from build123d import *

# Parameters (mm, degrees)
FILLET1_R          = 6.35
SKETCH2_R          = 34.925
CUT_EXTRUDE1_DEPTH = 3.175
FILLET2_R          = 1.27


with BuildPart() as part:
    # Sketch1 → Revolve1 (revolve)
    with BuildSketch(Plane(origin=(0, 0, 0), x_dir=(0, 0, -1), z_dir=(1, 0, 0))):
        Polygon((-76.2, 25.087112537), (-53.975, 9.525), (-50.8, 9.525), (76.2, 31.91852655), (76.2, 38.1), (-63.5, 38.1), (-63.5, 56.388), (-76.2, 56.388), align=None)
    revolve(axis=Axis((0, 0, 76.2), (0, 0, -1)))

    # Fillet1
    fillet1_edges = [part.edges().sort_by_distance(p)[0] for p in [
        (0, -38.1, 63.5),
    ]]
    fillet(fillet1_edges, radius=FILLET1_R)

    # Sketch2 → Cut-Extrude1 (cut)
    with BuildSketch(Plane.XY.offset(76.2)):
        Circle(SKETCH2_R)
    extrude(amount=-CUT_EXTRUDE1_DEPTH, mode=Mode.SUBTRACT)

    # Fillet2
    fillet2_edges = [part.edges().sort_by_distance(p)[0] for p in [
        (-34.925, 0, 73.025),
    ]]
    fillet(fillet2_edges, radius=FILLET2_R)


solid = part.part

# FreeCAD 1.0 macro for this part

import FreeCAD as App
import Part
import Sketcher
from FreeCAD import Vector
Q = App.Units.Quantity


def edges_at(feature, points):
    """Names of the edges that pass closest to the given points."""
    edges = feature.Shape.Edges
    near = lambda p: min(range(len(edges)), key=lambda i: edges[i].distToShape(Part.Vertex(*p))[0])
    return sorted({f"Edge{near(p) + 1}" for p in points})


def add_polygon(sketch, points):
    """Adds a closed chain of lines whose ends are joined by coincident constraints."""
    first, n = sketch.GeometryCount, len(points)
    for a, b in zip(points, points[1:] + points[:1]):
        sketch.addGeometry(Part.LineSegment(App.Vector(*a, 0), App.Vector(*b, 0)), False)
    for i in range(n):
        sketch.addConstraint(Sketcher.Constraint("Coincident", first + i, 2, first + (i + 1) % n, 1))

doc = App.newDocument("Part")
body = doc.addObject("PartDesign::Body", "Body")

# Sketch on YZ plane
sketch1 = body.newObject("Sketcher::SketchObject", "Sketch")
sketch1.AttachmentSupport = (doc.getObject("YZ_Plane"), [""])
sketch1.MapMode = "FlatFace"
add_polygon(sketch1, [(25.1, 76.2), (9.5, 54), (9.5, 50.8), (31.9, -76.2), (38.1, -76.2), (38.1, 63.5), (56.4, 63.5), (56.4, 76.2)])  # lines 0-7
sketch1.addConstraint([
    Sketcher.Constraint("Vertical", 1),
    Sketcher.Constraint("Horizontal", 3),
    Sketcher.Constraint("Vertical", 4),
    Sketcher.Constraint("Horizontal", 5),
    Sketcher.Constraint("Vertical", 6),
    Sketcher.Constraint("Horizontal", 7),
    Sketcher.Constraint("DistanceY", 4, 1, 4, 2, Q("5.5 in")),
    Sketcher.Constraint("DistanceY", 6, 1, 6, 2, Q("0.5 in")),
    Sketcher.Constraint("DistanceY", -1, 1, 1, 2, Q("2 in")),
    Sketcher.Constraint("DistanceY", 2, 2, -1, 1, Q("3 in")),
    Sketcher.Constraint("Angle", 0, Q("-125 deg")),
    Sketcher.Constraint("Angle", 2, Q("-80 deg")),
    Sketcher.Constraint("DistanceX", 5, 1, 5, 2, Q("0.72 in")),
    Sketcher.Constraint("DistanceX", -1, 1, 3, 2, Q("1.5 in")),
    Sketcher.Constraint("DistanceY", 1, 2, 1, 1, Q("0.125 in")),
    Sketcher.Constraint("DistanceX", -1, 1, 0, 2, Q("0.375 in")),
])
revolution = body.newObject("PartDesign::Revolution", "Revolution")
revolution.Profile = sketch1
revolution.ReferenceAxis = (sketch1, ["V_Axis"])
revolution.Angle = 360
doc.recompute()

fillet = body.newObject("PartDesign::Fillet", "Fillet")
fillet.Base = (revolution, edges_at(revolution, [(0, -38.1, 63.5)]))
fillet.Radius = Q("0.25 in")

# Sketch on XY plane
sketch2 = body.newObject("Sketcher::SketchObject", "Sketch001")
sketch2.AttachmentSupport = (doc.getObject("XY_Plane"), [""])
sketch2.MapMode = "FlatFace"
sketch2.AttachmentOffset = App.Placement(Vector(0, 0, 3 * 25.4), App.Rotation())
sketch2.addGeometry(Part.Circle(Vector(0, 0, 0), Vector(0, 0, 1), 35), False)
sketch2.addConstraint([
    Sketcher.Constraint("Coincident", 0, 3, -1, 1),
    Sketcher.Constraint("Diameter", 0, Q("2.75 in")),
])
pocket1 = body.newObject("PartDesign::Pocket", "Pocket")
pocket1.Profile = sketch2
pocket1.Length = Q("0.125 in")
doc.recompute()

fillet2 = body.newObject("PartDesign::Fillet", "Fillet001")
fillet2.Base = (pocket1, edges_at(pocket1, [(-34.925, 0, 73.025)]))
fillet2.Radius = Q("0.05 in")

doc.recompute()
